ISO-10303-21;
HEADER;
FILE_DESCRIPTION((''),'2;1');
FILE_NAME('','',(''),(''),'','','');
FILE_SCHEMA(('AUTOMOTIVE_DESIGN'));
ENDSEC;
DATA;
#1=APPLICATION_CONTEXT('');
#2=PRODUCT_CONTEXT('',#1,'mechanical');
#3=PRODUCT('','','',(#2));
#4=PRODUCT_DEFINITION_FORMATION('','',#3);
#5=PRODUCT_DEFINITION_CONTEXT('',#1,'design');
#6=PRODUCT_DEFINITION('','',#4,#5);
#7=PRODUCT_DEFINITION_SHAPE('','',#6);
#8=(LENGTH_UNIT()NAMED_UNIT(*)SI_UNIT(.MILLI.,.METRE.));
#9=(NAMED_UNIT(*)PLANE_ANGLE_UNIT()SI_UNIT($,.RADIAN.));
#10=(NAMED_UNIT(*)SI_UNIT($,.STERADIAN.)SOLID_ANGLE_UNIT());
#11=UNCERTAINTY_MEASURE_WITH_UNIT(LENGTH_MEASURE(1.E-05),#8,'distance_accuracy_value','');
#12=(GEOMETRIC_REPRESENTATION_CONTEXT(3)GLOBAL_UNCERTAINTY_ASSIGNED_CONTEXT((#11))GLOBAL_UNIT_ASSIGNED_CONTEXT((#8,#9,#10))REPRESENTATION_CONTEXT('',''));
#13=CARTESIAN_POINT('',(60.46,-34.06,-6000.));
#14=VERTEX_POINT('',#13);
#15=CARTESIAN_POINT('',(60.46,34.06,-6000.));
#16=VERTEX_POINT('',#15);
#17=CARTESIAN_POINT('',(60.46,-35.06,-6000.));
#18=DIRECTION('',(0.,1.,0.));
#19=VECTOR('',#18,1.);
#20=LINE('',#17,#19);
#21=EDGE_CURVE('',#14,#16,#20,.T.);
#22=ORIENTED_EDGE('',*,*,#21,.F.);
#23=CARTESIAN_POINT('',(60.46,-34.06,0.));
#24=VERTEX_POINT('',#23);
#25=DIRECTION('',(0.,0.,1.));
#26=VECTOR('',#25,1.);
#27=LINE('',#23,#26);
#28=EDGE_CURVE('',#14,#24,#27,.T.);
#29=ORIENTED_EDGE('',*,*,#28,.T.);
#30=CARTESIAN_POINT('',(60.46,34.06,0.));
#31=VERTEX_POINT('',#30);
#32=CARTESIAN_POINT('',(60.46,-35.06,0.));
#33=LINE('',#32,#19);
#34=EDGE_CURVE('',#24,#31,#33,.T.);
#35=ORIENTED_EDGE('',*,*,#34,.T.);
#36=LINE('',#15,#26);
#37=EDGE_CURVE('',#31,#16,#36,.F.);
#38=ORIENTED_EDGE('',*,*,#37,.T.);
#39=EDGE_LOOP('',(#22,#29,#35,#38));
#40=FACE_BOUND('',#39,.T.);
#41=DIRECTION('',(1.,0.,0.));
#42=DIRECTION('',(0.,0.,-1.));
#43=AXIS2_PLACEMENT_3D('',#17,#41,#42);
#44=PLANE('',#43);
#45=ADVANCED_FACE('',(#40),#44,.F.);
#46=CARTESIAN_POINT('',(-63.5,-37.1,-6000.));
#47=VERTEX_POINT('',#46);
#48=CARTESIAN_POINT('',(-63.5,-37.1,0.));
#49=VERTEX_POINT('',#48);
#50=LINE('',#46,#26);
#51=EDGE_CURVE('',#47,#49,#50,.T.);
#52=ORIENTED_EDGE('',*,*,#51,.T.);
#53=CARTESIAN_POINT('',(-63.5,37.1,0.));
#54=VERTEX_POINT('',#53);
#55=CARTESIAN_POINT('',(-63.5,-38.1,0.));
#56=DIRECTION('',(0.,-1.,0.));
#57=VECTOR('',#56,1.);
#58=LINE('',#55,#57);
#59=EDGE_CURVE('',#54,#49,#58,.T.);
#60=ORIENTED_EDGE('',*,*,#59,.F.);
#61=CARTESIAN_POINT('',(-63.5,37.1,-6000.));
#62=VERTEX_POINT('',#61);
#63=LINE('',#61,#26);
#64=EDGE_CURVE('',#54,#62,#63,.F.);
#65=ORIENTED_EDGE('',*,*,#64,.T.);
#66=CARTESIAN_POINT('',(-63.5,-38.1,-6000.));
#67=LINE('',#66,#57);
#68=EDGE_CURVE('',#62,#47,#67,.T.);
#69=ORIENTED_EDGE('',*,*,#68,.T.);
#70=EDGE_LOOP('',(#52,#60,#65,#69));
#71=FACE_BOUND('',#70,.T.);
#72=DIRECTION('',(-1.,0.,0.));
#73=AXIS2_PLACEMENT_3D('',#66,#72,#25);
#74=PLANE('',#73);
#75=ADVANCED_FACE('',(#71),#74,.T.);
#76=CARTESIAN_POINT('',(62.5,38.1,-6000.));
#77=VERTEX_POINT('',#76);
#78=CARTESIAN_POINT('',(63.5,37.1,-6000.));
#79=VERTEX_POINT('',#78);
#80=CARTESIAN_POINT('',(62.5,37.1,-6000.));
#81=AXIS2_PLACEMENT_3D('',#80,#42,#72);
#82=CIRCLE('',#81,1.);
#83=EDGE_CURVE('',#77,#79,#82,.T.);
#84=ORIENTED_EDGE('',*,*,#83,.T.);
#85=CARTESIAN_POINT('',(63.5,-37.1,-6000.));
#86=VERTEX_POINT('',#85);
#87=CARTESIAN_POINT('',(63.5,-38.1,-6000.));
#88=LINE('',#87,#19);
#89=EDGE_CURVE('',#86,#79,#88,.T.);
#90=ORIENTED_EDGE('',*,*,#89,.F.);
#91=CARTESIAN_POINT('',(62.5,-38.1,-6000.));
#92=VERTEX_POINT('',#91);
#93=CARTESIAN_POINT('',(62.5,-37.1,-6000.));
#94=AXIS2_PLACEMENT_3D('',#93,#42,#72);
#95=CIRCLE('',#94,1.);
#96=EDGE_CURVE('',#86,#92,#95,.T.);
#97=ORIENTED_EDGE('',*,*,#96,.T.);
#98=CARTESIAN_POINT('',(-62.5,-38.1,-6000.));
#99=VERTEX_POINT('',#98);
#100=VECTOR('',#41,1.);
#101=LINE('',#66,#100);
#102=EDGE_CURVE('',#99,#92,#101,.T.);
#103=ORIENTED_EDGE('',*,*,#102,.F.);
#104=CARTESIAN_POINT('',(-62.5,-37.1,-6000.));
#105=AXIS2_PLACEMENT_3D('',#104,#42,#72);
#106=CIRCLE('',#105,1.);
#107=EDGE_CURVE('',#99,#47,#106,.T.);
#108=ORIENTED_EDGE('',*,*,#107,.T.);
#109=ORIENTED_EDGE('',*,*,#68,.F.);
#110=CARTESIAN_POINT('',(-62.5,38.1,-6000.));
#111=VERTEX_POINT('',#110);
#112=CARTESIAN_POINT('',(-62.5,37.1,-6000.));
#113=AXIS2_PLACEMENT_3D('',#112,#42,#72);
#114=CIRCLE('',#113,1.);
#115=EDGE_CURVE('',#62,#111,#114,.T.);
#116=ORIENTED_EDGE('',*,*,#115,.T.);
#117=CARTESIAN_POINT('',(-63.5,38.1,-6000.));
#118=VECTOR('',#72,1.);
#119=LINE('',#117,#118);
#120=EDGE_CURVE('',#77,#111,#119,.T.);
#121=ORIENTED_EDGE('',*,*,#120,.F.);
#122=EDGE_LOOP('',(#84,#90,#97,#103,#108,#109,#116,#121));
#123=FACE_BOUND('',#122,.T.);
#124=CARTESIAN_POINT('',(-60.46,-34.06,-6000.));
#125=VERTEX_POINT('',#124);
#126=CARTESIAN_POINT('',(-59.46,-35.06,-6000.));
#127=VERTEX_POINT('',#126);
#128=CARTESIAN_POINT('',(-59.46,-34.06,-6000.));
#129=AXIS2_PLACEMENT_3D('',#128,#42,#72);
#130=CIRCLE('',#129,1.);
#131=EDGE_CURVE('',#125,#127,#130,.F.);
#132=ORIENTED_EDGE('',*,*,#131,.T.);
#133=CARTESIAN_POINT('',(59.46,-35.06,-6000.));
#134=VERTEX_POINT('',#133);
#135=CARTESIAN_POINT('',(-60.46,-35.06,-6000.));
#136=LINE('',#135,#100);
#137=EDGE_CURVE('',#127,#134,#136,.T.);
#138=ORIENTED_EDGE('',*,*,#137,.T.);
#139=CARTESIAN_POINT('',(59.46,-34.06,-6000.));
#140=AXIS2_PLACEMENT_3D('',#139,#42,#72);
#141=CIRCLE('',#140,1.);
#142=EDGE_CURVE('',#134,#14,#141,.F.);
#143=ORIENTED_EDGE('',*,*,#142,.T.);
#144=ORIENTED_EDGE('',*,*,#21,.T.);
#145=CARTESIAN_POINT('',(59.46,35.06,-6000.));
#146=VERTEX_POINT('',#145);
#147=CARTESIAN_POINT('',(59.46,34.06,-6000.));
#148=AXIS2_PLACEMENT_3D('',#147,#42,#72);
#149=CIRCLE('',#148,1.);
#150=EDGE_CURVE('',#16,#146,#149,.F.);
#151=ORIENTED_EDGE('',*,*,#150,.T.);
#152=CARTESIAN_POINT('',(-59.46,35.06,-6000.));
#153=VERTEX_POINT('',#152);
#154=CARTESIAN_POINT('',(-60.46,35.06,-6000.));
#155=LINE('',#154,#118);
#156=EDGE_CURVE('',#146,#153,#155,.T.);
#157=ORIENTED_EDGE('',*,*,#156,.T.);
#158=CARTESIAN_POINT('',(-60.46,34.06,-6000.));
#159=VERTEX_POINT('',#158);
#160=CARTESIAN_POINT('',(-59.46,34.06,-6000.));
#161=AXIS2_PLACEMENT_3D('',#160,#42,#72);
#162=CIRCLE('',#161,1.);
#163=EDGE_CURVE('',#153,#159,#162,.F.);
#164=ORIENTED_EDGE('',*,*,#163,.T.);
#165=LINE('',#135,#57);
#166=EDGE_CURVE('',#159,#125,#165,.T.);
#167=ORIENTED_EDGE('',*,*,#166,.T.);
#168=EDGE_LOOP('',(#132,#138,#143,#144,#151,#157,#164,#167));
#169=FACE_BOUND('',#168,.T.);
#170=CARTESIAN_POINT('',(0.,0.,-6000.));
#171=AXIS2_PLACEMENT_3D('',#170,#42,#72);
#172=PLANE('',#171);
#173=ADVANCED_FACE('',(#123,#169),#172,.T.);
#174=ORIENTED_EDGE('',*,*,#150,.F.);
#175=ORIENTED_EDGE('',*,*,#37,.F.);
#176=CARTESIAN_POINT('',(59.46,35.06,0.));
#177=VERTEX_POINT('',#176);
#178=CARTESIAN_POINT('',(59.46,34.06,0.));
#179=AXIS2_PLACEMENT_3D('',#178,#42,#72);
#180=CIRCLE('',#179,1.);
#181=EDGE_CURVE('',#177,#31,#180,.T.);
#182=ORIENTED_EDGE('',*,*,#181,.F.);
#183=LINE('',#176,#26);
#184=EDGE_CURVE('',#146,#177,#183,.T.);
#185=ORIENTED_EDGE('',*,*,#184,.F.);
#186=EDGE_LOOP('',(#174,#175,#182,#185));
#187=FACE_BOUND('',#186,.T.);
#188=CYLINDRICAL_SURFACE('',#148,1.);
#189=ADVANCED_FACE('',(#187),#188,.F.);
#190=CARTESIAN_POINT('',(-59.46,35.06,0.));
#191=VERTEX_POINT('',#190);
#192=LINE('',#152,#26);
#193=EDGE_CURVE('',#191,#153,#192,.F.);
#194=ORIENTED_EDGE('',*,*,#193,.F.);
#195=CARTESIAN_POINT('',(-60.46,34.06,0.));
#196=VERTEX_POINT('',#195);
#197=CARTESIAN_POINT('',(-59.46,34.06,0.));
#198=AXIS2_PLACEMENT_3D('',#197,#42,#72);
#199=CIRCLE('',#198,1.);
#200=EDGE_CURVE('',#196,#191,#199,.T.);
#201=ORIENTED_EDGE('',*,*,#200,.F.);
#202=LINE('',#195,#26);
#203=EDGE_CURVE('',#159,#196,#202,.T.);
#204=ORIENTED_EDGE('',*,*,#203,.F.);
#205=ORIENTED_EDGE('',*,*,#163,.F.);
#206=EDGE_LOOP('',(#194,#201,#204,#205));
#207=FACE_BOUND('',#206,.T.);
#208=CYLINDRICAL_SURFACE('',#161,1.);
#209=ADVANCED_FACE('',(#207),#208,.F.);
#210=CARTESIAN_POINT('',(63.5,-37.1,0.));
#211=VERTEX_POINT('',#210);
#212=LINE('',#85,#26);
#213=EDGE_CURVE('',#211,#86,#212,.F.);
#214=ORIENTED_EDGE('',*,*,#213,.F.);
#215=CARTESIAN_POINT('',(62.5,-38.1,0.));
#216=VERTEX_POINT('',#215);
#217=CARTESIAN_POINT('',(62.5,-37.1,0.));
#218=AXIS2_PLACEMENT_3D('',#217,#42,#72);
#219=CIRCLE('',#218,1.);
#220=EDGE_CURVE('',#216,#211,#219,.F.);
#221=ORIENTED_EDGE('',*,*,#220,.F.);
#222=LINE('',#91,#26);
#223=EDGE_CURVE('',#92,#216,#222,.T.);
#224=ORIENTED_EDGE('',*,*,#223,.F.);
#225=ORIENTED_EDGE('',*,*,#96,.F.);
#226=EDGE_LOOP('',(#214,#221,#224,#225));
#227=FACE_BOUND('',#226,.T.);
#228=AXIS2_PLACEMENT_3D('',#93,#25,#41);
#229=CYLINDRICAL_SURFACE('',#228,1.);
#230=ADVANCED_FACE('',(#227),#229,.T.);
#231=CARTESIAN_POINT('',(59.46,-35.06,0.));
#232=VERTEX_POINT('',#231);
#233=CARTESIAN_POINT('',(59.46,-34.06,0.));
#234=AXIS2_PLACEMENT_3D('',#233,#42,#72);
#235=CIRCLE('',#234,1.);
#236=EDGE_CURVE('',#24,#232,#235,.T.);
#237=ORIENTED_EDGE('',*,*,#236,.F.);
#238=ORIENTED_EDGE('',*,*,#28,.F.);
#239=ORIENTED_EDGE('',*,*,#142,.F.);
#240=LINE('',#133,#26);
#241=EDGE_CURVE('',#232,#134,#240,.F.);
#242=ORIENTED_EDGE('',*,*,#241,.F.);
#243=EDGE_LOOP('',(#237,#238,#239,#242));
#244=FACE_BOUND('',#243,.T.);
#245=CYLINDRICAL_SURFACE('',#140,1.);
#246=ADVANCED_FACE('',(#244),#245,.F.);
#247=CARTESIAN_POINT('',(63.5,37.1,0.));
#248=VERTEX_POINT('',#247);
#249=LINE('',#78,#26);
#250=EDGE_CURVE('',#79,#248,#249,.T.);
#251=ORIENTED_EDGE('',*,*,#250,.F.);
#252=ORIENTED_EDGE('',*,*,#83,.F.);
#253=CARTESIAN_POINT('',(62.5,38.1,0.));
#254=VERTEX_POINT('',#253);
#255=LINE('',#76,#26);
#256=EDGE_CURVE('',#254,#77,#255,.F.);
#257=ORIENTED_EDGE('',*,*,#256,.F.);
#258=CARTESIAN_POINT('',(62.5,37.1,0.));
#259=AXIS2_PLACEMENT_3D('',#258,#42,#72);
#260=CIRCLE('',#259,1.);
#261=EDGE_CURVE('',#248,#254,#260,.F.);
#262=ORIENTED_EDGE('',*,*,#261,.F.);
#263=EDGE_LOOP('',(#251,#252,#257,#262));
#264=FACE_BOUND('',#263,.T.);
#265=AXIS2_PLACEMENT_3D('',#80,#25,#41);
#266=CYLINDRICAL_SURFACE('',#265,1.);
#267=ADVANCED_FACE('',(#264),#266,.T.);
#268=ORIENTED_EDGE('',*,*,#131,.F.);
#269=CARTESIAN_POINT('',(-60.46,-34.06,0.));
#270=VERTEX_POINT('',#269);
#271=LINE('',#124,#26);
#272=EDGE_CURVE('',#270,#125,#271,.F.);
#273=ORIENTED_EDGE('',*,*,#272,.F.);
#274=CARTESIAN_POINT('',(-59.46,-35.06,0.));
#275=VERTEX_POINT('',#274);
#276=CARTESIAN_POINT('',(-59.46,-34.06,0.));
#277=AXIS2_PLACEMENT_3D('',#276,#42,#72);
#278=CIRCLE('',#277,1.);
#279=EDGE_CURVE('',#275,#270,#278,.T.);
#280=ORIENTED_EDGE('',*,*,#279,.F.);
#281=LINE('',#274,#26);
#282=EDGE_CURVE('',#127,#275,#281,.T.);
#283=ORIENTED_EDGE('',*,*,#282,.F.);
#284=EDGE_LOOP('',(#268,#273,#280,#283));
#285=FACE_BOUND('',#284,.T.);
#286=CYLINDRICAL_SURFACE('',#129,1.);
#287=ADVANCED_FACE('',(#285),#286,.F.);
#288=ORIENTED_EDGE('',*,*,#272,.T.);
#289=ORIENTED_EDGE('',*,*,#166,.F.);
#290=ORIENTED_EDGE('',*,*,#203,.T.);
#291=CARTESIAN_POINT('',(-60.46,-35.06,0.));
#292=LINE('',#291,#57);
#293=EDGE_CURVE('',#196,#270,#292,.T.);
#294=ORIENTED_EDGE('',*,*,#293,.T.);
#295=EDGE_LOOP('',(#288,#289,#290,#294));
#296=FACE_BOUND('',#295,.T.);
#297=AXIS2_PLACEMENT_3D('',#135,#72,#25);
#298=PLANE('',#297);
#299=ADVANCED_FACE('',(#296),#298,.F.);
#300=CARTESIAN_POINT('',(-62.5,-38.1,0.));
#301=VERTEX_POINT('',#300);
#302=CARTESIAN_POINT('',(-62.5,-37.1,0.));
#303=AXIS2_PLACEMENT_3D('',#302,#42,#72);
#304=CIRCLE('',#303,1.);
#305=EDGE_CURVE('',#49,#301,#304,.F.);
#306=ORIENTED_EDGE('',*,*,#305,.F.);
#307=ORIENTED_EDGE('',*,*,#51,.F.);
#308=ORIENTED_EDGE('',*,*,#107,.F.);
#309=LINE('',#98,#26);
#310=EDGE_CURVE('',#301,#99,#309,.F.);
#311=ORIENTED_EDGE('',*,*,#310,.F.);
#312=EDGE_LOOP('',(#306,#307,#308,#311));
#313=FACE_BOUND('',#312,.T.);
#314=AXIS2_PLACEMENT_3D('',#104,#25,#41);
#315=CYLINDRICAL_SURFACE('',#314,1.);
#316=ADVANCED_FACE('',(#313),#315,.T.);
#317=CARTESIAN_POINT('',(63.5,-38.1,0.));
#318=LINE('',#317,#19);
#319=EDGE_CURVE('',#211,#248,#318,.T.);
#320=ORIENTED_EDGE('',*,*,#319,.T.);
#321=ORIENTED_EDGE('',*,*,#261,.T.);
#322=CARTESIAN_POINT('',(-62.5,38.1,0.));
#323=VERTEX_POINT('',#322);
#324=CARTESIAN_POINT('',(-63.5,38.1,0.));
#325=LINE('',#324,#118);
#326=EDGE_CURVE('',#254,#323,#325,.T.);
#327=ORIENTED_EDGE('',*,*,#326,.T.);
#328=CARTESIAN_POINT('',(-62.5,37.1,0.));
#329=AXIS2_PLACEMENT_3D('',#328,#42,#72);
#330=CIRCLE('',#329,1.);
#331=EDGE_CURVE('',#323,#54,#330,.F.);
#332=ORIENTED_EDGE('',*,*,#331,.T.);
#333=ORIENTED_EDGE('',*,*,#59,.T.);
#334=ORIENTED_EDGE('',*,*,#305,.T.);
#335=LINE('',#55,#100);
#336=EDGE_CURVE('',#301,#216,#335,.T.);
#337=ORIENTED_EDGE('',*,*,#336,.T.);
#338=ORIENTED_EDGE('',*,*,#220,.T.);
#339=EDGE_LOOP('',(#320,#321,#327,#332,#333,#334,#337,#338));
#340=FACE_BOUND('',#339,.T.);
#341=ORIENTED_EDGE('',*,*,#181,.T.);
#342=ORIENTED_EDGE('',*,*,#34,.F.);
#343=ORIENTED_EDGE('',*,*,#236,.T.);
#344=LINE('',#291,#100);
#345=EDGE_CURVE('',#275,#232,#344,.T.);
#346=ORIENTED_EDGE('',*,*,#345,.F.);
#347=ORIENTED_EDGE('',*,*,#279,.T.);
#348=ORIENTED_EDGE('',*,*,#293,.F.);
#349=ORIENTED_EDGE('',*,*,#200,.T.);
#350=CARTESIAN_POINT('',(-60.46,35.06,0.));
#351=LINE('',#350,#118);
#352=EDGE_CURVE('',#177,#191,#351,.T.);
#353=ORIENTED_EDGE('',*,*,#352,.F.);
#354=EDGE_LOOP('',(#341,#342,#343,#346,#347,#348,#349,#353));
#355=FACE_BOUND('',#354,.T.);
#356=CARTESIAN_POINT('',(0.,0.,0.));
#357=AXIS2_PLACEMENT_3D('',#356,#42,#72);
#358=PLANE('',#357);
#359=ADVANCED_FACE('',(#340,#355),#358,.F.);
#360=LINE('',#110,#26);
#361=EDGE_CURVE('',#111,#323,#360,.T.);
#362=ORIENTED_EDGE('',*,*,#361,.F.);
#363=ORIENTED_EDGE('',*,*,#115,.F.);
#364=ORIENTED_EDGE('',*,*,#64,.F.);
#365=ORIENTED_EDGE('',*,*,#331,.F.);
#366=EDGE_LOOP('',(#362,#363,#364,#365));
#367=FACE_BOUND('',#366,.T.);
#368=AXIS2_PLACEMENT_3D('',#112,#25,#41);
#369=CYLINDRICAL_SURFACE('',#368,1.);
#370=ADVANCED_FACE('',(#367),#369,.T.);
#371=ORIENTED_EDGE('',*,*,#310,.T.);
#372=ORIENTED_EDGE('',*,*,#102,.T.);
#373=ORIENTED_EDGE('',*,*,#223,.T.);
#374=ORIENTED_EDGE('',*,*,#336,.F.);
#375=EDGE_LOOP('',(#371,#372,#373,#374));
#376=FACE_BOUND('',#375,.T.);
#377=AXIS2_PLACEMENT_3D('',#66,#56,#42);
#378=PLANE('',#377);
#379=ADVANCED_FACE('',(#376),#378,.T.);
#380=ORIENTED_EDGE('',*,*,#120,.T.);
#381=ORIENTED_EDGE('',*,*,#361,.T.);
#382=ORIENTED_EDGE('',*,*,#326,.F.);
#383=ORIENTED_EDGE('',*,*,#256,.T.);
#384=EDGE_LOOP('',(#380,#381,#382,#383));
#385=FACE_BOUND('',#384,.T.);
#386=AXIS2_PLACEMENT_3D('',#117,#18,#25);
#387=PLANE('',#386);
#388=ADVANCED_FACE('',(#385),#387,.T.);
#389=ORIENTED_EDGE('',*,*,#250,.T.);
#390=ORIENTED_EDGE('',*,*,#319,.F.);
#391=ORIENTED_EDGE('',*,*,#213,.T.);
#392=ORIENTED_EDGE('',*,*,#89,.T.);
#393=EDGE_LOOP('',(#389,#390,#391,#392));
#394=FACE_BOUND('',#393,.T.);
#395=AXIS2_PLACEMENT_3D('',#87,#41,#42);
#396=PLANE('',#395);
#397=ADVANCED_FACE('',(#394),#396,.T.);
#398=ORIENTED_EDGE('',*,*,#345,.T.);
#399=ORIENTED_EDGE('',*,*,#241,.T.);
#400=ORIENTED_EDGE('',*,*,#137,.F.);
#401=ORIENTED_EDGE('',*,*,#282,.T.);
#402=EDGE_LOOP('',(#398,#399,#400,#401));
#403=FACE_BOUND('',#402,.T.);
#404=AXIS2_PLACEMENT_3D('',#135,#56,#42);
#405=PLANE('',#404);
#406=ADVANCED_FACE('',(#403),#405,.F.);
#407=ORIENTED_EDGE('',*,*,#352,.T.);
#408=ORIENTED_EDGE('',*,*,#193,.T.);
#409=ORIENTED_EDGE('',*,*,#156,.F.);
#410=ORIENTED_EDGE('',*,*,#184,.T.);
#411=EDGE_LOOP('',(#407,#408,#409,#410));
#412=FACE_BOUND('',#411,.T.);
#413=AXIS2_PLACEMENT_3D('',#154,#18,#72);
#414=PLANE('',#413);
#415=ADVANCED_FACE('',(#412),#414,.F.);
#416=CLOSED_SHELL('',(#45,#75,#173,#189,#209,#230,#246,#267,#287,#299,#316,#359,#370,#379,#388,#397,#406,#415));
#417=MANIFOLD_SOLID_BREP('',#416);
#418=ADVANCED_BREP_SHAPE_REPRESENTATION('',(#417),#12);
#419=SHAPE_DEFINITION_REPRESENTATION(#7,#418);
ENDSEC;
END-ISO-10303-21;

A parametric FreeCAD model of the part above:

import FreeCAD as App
import Part
import Sketcher

V = App.Vector


def edges_at(feature, points):
    """Names of the edges that pass closest to the given points."""
    edges = feature.Shape.Edges
    near = lambda p: min(range(len(edges)), key=lambda i: edges[i].distToShape(Part.Vertex(*p))[0])
    return sorted({f"Edge{near(p) + 1}" for p in points})


def add_polygon(sketch, points):
    """Adds a closed chain of lines whose ends are joined by coincident constraints."""
    first, n = sketch.GeometryCount, len(points)
    for a, b in zip(points, points[1:] + points[:1]):
        sketch.addGeometry(Part.LineSegment(App.Vector(*a, 0), App.Vector(*b, 0)), False)
    for i in range(n):
        sketch.addConstraint(Sketcher.Constraint("Coincident", first + i, 2, first + (i + 1) % n, 1))

doc = App.newDocument("Part")
body = doc.addObject("PartDesign::Body", "Body")

# Sketch on XY plane
sketch1 = body.newObject("Sketcher::SketchObject", "Sketch")
sketch1.AttachmentSupport = (doc.getObject("XY_Plane"), [""])
sketch1.MapMode = "FlatFace"
add_polygon(sketch1, [(-64, 38), (-64, -38), (64, -38), (64, 38)])  # lines 0-3
add_polygon(sketch1, [(60, -35), (-60, -35), (-60, 35), (60, 35)])  # lines 4-7
sketch1.addConstraint([
    Sketcher.Constraint("Vertical", 0),
    Sketcher.Constraint("Horizontal", 1),
    Sketcher.Constraint("Vertical", 2),
    Sketcher.Constraint("Horizontal", 3),
    Sketcher.Constraint("Horizontal", 4),
    Sketcher.Constraint("Vertical", 5),
    Sketcher.Constraint("Horizontal", 6),
    Sketcher.Constraint("Vertical", 7),
    Sketcher.Constraint("Symmetric", 0, 2, 2, 2, -1, 1),
    Sketcher.Constraint("Symmetric", 4, 2, 6, 2, -1, 1),
    Sketcher.Constraint("DistanceX", 1, 1, 1, 2, 127.0),
    Sketcher.Constraint("DistanceY", 0, 2, 0, 1, 76.2),
    Sketcher.Constraint("DistanceX", 4, 2, 4, 1, 120.92),
    Sketcher.Constraint("DistanceY", 5, 1, 5, 2, 70.12),
])
pad1 = body.newObject("PartDesign::Pad", "Pad")
pad1.Profile = sketch1
pad1.Length = 6000
pad1.Reversed = True
doc.recompute()

fillet = body.newObject("PartDesign::Fillet", "Fillet")
fillet.Base = (pad1, edges_at(pad1, [
    (60.46, -35.06, -3000),
    (-60.46, -35.06, -3000),
    (-60.46, 35.06, -3000),
    (60.46, 35.06, -3000),
    (63.5, -38.1, -3000),
    (-63.5, -38.1, -3000),
    (-63.5, 38.1, -3000),
    (63.5, 38.1, -3000),
]))
fillet.Radius = 1

doc.recompute()
